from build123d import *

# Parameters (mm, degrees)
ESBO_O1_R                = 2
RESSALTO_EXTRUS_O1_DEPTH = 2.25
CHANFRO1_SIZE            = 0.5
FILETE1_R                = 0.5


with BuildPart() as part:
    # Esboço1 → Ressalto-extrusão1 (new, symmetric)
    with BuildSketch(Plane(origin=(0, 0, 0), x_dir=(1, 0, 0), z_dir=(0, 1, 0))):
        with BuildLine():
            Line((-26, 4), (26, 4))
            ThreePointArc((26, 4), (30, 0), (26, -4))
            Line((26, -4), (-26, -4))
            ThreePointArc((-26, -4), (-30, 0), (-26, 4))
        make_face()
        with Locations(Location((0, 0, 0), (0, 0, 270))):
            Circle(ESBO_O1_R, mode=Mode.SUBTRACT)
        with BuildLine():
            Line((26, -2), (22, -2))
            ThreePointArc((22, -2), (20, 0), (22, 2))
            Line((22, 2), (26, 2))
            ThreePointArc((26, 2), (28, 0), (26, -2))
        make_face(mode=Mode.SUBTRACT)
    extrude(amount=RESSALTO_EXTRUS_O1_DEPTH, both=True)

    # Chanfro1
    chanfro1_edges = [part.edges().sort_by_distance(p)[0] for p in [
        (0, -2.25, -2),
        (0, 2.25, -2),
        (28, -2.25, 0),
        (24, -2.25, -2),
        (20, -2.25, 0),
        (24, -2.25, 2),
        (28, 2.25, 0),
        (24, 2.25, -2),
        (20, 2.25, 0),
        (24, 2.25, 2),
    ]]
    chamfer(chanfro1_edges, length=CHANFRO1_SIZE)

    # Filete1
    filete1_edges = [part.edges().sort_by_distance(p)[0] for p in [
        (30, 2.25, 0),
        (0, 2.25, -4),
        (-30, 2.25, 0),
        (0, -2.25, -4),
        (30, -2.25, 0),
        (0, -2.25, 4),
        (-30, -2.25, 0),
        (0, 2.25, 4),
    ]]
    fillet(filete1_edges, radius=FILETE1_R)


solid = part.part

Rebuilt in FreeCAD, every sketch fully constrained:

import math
import FreeCAD as App
import Part
import Sketcher

V = App.Vector


def edges_at(feature, points):
    """Names of the edges that pass closest to the given points."""
    edges = feature.Shape.Edges
    near = lambda p: min(range(len(edges)), key=lambda i: edges[i].distToShape(Part.Vertex(*p))[0])
    return sorted({f"Edge{near(p) + 1}" for p in points})

doc = App.newDocument("Part")
body = doc.addObject("PartDesign::Body", "Body")

# Sketch on XZ plane
sketch1 = doc.addObject("Sketcher::SketchObject", "Sketch")
body.addObject(sketch1)
sketch1.AttachmentSupport = (doc.XZ_Plane, [""])
sketch1.MapMode = "FlatFace"
sketch1.addGeometry([
    Part.LineSegment(V(26, -4, 0), V(-26, -4, 0)),  # 0
    Part.ArcOfCircle(Part.Circle(V(-26, 0, 0), V(0, 0, 1), 4), math.radians(90), math.radians(270)),  # 1
    Part.LineSegment(V(-26, 4, 0), V(26, 4, 0)),  # 2
    Part.ArcOfCircle(Part.Circle(V(26, 0, 0), V(0, 0, 1), 4), math.radians(-90), math.radians(90)),  # 3
    Part.LineSegment(V(26, 2, 0), V(22, 2, 0)),  # 4
    Part.ArcOfCircle(Part.Circle(V(22, 0, 0), V(0, 0, 1), 2), math.radians(90), math.radians(270)),  # 5
    Part.LineSegment(V(22, -2, 0), V(26, -2, 0)),  # 6
    Part.ArcOfCircle(Part.Circle(V(26, 0, 0), V(0, 0, 1), 2), math.radians(-90), math.radians(90)),  # 7
    Part.Circle(V(0, 0, 0), V(0, 0, 1), 2),  # 8
], False)
sketch1.addConstraint([
    Sketcher.Constraint("Tangent", 0, 2, 1, 2),
    Sketcher.Constraint("Tangent", 1, 1, 2, 1),
    Sketcher.Constraint("Tangent", 2, 2, 3, 2),
    Sketcher.Constraint("Tangent", 3, 1, 0, 1),
    Sketcher.Constraint("Tangent", 4, 2, 5, 1),
    Sketcher.Constraint("Tangent", 5, 2, 6, 1),
    Sketcher.Constraint("Tangent", 6, 2, 7, 1),
    Sketcher.Constraint("Tangent", 7, 2, 4, 1),
    Sketcher.Constraint("Horizontal", 0),
    Sketcher.Constraint("Horizontal", 2),
    Sketcher.Constraint("Horizontal", 4),
    Sketcher.Constraint("Horizontal", 6),
    Sketcher.Constraint("Coincident", 8, 3, -1, 1),
    Sketcher.Constraint("Coincident", 7, 3, 3, 3),
    Sketcher.Constraint("Equal", 7, 8),
    Sketcher.Constraint("Symmetric", 1, 3, 3, 3, -1, 1),
    Sketcher.Constraint("Diameter", 8, 4.0),
    Sketcher.Constraint("Radius", 1, 4.0),
    Sketcher.Constraint("DistanceX", 0, 2, 0, 1, 52.0),
    Sketcher.Constraint("DistanceX", 4, 2, 4, 1, 4.0),
])
pad1 = doc.addObject("PartDesign::Pad", "Pad")
body.addObject(pad1)
pad1.Profile = sketch1
pad1.Length = 4.5
pad1.Midplane = True
doc.recompute()

chamfer = doc.addObject("PartDesign::Chamfer", "Chamfer")
body.addObject(chamfer)
chamfer.Base = (pad1, edges_at(pad1, [
    (0, -2.25, -2),
    (0, 2.25, -2),
    (28, -2.25, 0),
    (24, -2.25, -2),
    (20, -2.25, 0),
    (24, -2.25, 2),
    (28, 2.25, 0),
    (24, 2.25, -2),
    (20, 2.25, 0),
    (24, 2.25, 2),
]))
chamfer.Size = 0.5
doc.recompute()

fillet = doc.addObject("PartDesign::Fillet", "Fillet")
body.addObject(fillet)
fillet.Base = (chamfer, edges_at(chamfer, [
    (30, 2.25, 0),
    (0, 2.25, -4),
    (-30, 2.25, 0),
    (0, -2.25, -4),
    (30, -2.25, 0),
    (0, -2.25, 4),
    (-30, -2.25, 0),
    (0, 2.25, 4),
]))
fillet.Radius = 0.5

doc.recompute()
